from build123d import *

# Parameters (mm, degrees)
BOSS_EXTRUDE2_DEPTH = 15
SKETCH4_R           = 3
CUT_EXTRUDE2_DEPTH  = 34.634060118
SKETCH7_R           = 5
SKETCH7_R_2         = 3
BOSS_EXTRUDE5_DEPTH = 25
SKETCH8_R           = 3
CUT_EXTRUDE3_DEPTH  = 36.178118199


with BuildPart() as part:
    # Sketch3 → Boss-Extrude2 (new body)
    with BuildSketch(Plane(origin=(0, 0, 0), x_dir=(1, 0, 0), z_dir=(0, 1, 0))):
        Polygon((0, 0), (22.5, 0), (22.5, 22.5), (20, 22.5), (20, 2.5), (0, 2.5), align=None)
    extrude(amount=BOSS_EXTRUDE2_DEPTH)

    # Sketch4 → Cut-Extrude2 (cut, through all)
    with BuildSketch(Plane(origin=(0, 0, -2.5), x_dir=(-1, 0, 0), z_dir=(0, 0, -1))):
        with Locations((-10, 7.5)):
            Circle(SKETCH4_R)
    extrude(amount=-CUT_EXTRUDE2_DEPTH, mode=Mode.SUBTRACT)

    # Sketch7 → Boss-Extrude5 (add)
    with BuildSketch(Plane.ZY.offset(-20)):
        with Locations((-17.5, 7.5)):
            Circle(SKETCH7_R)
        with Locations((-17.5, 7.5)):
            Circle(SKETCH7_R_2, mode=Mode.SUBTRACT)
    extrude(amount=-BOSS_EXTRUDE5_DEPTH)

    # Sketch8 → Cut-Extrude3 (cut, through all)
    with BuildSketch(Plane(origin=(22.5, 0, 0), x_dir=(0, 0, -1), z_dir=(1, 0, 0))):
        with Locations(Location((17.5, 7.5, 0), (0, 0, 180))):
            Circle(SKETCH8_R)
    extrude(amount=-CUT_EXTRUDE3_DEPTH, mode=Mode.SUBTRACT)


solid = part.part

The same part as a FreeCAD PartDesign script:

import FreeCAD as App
import Part
import Sketcher

V = App.Vector
Q = App.Units.Quantity


def add_polygon(sketch, points):
    """Adds a closed chain of lines whose ends are joined by coincident constraints."""
    first, n = sketch.GeometryCount, len(points)
    for a, b in zip(points, points[1:] + points[:1]):
        sketch.addGeometry(Part.LineSegment(App.Vector(*a, 0), App.Vector(*b, 0)), False)
    for i in range(n):
        sketch.addConstraint(Sketcher.Constraint("Coincident", first + i, 2, first + (i + 1) % n, 1))

doc = App.newDocument("Part")
body = doc.addObject("PartDesign::Body", "Body")

# Sketch on XZ plane
sketch1 = doc.addObject("Sketcher::SketchObject", "Sketch")
body.addObject(sketch1)
sketch1.AttachmentSupport = (doc.XZ_Plane, [""])
sketch1.MapMode = "FlatFace"
add_polygon(sketch1, [(0, 0), (22.5, 0), (22.5, -22.5), (20, -22.5), (20, -2.5), (0, -2.5)])  # lines 0-5
sketch1.addConstraint(Sketcher.Constraint("Horizontal", 0))
sketch1.addConstraint(Sketcher.Constraint("Vertical", 1))
sketch1.addConstraint(Sketcher.Constraint("Horizontal", 2))
sketch1.addConstraint(Sketcher.Constraint("Vertical", 3))
sketch1.addConstraint(Sketcher.Constraint("Horizontal", 4))
sketch1.addConstraint(Sketcher.Constraint("Vertical", 5))
sketch1.addConstraint(Sketcher.Constraint("Coincident", 5, 2, -1, 1))
sketch1.addConstraint(Sketcher.Constraint("Equal", 0, 1))
sketch1.addConstraint(Sketcher.Constraint("Equal", 4, 3))
sketch1.addConstraint(Sketcher.Constraint("DistanceX", 4, 2, 4, 1, Q("20 mm")))
sketch1.addConstraint(Sketcher.Constraint("DistanceX", 0, 1, 0, 2, Q("22.5 mm")))
pad1 = doc.addObject("PartDesign::Pad", "Pad")
body.addObject(pad1)
pad1.Profile = sketch1
pad1.Length = 15
pad1.Reversed = True

# Sketch on XY plane
sketch2 = doc.addObject("Sketcher::SketchObject", "Sketch001")
body.addObject(sketch2)
sketch2.AttachmentSupport = (doc.XY_Plane, [""])
sketch2.MapMode = "FlatFace"
sketch2.AttachmentOffset = App.Placement(V(0, 0, -2.5), App.Rotation())
sketch2.addGeometry(Part.Circle(V(10, 7.5, 0), V(0, 0, 1), 3), False)
sketch2.addConstraint(Sketcher.Constraint("Diameter", 0, Q("6 mm")))
sketch2.addConstraint(Sketcher.Constraint("DistanceX", -1, 1, 0, 3, Q("10 mm")))
sketch2.addConstraint(Sketcher.Constraint("DistanceY", -1, 1, 0, 3, Q("7.5 mm")))
pocket1 = doc.addObject("PartDesign::Pocket", "Pocket")
body.addObject(pocket1)
pocket1.Profile = sketch2
pocket1.Type = "ThroughAll"
pocket1.Reversed = True

# Sketch on YZ plane
sketch3 = doc.addObject("Sketcher::SketchObject", "Sketch002")
body.addObject(sketch3)
sketch3.AttachmentSupport = (doc.YZ_Plane, [""])
sketch3.MapMode = "FlatFace"
sketch3.AttachmentOffset = App.Placement(V(0, 0, 20), App.Rotation())
sketch3.addGeometry(Part.Circle(V(7.5, -17.5, 0), V(0, 0, 1), 5), False)
sketch3.addGeometry(Part.Circle(V(7.5, -17.5, 0), V(0, 0, 1), 3), False)
sketch3.addConstraint(Sketcher.Constraint("Coincident", 1, 3, 0, 3))
sketch3.addConstraint(Sketcher.Constraint("Diameter", 0, Q("10 mm")))
sketch3.addConstraint(Sketcher.Constraint("Diameter", 1, Q("6 mm")))
sketch3.addConstraint(Sketcher.Constraint("DistanceX", -1, 1, 0, 3, Q("7.5 mm")))
sketch3.addConstraint(Sketcher.Constraint("DistanceY", 0, 3, -1, 1, Q("17.5 mm")))
pad2 = doc.addObject("PartDesign::Pad", "Pad001")
body.addObject(pad2)
pad2.Profile = sketch3
pad2.Length = 25

# Sketch on YZ plane
sketch4 = doc.addObject("Sketcher::SketchObject", "Sketch003")
body.addObject(sketch4)
sketch4.AttachmentSupport = (doc.YZ_Plane, [""])
sketch4.MapMode = "FlatFace"
sketch4.AttachmentOffset = App.Placement(V(0, 0, 22.5), App.Rotation())
sketch4.addGeometry(Part.Circle(V(7.5, -17.5, 0), V(0, 0, 1), 3), False)
sketch4.addConstraint(Sketcher.Constraint("Diameter", 0, Q("6 mm")))
sketch4.addConstraint(Sketcher.Constraint("DistanceX", -1, 1, 0, 3, Q("7.5 mm")))
sketch4.addConstraint(Sketcher.Constraint("DistanceY", 0, 3, -1, 1, Q("17.5 mm")))
pocket2 = doc.addObject("PartDesign::Pocket", "Pocket001")
body.addObject(pocket2)
pocket2.Profile = sketch4
pocket2.Type = "ThroughAll"

doc.recompute()
